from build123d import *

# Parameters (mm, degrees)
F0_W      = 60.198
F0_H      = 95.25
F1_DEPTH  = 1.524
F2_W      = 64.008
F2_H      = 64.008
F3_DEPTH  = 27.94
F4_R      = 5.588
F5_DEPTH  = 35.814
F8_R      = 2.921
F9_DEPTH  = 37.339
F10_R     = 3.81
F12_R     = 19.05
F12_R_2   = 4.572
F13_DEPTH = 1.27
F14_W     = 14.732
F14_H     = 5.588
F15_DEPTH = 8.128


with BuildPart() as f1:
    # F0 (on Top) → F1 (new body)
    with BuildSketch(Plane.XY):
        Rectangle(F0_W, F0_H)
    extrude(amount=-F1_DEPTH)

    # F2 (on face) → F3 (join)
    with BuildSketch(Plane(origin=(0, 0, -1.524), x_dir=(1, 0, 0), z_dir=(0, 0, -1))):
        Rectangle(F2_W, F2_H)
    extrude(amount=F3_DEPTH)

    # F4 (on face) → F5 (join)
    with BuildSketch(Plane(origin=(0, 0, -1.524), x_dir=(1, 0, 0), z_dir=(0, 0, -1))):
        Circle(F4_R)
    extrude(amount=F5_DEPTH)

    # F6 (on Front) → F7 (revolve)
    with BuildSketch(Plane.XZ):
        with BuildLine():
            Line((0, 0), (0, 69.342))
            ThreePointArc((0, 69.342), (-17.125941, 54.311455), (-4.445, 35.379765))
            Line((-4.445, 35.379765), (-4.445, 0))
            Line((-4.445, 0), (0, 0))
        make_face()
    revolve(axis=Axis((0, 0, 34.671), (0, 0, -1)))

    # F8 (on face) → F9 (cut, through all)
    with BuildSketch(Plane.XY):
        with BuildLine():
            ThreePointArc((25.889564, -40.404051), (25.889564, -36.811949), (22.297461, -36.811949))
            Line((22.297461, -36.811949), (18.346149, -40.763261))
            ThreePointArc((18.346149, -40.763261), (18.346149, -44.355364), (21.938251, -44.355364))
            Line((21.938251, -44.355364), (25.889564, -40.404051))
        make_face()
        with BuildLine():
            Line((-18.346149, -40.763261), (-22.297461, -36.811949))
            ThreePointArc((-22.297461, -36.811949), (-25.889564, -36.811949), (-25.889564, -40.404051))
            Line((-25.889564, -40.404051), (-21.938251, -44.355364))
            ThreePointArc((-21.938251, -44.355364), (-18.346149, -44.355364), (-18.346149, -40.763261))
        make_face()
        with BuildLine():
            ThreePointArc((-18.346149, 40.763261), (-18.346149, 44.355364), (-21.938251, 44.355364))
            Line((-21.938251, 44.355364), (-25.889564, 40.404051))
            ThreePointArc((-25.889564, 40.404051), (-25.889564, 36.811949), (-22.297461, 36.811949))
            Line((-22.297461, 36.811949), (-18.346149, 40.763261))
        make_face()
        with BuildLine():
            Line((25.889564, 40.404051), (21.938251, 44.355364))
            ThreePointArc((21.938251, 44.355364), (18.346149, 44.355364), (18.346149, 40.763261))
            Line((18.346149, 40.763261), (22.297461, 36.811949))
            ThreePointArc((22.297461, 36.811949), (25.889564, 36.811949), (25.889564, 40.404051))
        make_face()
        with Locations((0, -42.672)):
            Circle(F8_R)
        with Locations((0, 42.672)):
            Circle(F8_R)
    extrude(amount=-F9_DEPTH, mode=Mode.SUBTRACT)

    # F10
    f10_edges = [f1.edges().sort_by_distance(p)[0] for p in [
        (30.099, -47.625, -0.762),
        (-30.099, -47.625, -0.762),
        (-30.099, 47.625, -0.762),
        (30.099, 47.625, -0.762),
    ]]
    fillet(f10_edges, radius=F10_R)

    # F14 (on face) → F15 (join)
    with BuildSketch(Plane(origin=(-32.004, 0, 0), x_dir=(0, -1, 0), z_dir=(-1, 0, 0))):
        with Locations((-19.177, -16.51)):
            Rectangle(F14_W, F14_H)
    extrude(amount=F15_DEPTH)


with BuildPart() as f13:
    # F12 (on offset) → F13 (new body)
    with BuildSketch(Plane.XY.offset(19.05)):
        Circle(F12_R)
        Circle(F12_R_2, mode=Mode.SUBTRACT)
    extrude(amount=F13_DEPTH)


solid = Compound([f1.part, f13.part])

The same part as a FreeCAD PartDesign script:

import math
import FreeCAD as App
import Part
import Sketcher
from FreeCAD import Vector
Q = App.Units.Quantity


def edges_at(feature, points):
    """Names of the edges that pass closest to the given points."""
    edges = feature.Shape.Edges
    near = lambda p: min(range(len(edges)), key=lambda i: edges[i].distToShape(Part.Vertex(*p))[0])
    return sorted({f"Edge{near(p) + 1}" for p in points})


def add_polygon(sketch, points):
    """Adds a closed chain of lines whose ends are joined by coincident constraints."""
    first, n = sketch.GeometryCount, len(points)
    for a, b in zip(points, points[1:] + points[:1]):
        sketch.addGeometry(Part.LineSegment(App.Vector(*a, 0), App.Vector(*b, 0)), False)
    for i in range(n):
        sketch.addConstraint(Sketcher.Constraint("Coincident", first + i, 2, first + (i + 1) % n, 1))

doc = App.newDocument("Part")
params = doc.addObject("Spreadsheet::Sheet", "Params")
for row, (alias, value) in enumerate([
    ("sketch1_width", "2.37 in"),
    ("sketch1_height", "3.75 in"),
    ("pad1_length", "0.06 in"),
    ("sketch2_width", "2.52 in"),
    ("pad2_length", "1.1 in"),
    ("sketch3_diameter", "0.44 in"),
    ("pad3_length", "1.41 in"),
    ("sketch4_radius", "0.68 in"),
    ("sketch4_height", "2.73 in"),
    ("sketch4_width", "0.175 in"),
    ("revolution_angle", "360 deg"),
    ("sketch5_radius", "0.1 in"),
    ("sketch5_diameter", "0.23 in"),
    ("sketch5_length", "0.22 in"),
    ("fillet_radius", "0.15 in"),
    ("sketch6_width", "0.58 in"),
    ("sketch6_height", "0.22 in"),
    ("pad4_length", "0.32 in"),
    ("sketch7_diameter", "1.5 in"),
    ("sketch7_diameter2", "0.36 in"),
    ("pad5_length", "0.05 in"),
], start=1):
    params.set(f"A{row}", alias)
    params.set(f"B{row}", "=" + value)
    params.setAlias(f"B{row}", alias)

body = doc.addObject("PartDesign::Body", "Body")

# Sketch on XY plane
sketch1 = doc.addObject("Sketcher::SketchObject", "Sketch")
body.addObject(sketch1)
sketch1.AttachmentSupport = (doc.XY_Plane, [""])
sketch1.MapMode = "FlatFace"
add_polygon(sketch1, [(-30.099, 47.625), (-30.099, -47.625), (30.099, -47.625), (30.099, 47.625)])  # lines 0-3
sketch1.addConstraint([
    Sketcher.Constraint("Vertical", 0),
    Sketcher.Constraint("Horizontal", 1),
    Sketcher.Constraint("Vertical", 2),
    Sketcher.Constraint("Horizontal", 3),
    Sketcher.Constraint("Symmetric", 0, 2, 2, 2, -1, 1),
    Sketcher.Constraint("DistanceX", 1, 1, 1, 2, Q("2.37 in")),
    Sketcher.Constraint("DistanceY", 0, 2, 0, 1, Q("3.75 in")),
])
sketch1.setExpression("Constraints[9]", "Params.sketch1_width")
sketch1.setExpression("Constraints[10]", "Params.sketch1_height")
pad1 = doc.addObject("PartDesign::Pad", "Pad")
body.addObject(pad1)
pad1.Profile = sketch1
pad1.setExpression("Length", "Params.pad1_length")
pad1.Reversed = True

# Sketch on XY plane
sketch2 = doc.addObject("Sketcher::SketchObject", "Sketch001")
body.addObject(sketch2)
sketch2.AttachmentSupport = (doc.XY_Plane, [""])
sketch2.MapMode = "FlatFace"
sketch2.AttachmentOffset = App.Placement(Vector(0, 0, -0.06 * 25.4), App.Rotation())
add_polygon(sketch2, [(-32.004, -32.004), (-32.004, 32.004), (32.004, 32.004), (32.004, -32.004)])  # lines 0-3
sketch2.addConstraint([
    Sketcher.Constraint("Vertical", 0),
    Sketcher.Constraint("Horizontal", 1),
    Sketcher.Constraint("Vertical", 2),
    Sketcher.Constraint("Horizontal", 3),
    Sketcher.Constraint("Symmetric", 0, 2, 2, 2, -1, 1),
    Sketcher.Constraint("Equal", 3, 0),
    Sketcher.Constraint("DistanceX", 1, 1, 1, 2, Q("2.52 in")),
])
sketch2.setExpression("Constraints[10]", "Params.sketch2_width")
pad2 = doc.addObject("PartDesign::Pad", "Pad001")
body.addObject(pad2)
pad2.Profile = sketch2
pad2.setExpression("Length", "Params.pad2_length")
pad2.Reversed = True

# Sketch on XY plane
sketch3 = doc.addObject("Sketcher::SketchObject", "Sketch002")
body.addObject(sketch3)
sketch3.AttachmentSupport = (doc.XY_Plane, [""])
sketch3.MapMode = "FlatFace"
sketch3.AttachmentOffset = App.Placement(Vector(0, 0, -0.06 * 25.4), App.Rotation())
sketch3.addGeometry(Part.Circle(Vector(0, 0, 0), Vector(0, 0, 1), 5.588), False)
sketch3.addConstraint([
    Sketcher.Constraint("Coincident", 0, 3, -1, 1),
    Sketcher.Constraint("Diameter", 0, Q("0.44 in")),
])
sketch3.setExpression("Constraints[1]", "Params.sketch3_diameter")
pad3 = doc.addObject("PartDesign::Pad", "Pad002")
body.addObject(pad3)
pad3.Profile = sketch3
pad3.setExpression("Length", "Params.pad3_length")
pad3.Reversed = True

# Sketch on XZ plane
sketch4 = doc.addObject("Sketcher::SketchObject", "Sketch003")
body.addObject(sketch4)
sketch4.AttachmentSupport = (doc.XZ_Plane, [""])
sketch4.MapMode = "FlatFace"
sketch4.addGeometry([
    Part.LineSegment(Vector(0, 0, 0), Vector(0, 69.342, 0)),
    Part.ArcOfCircle(Part.Circle(Vector(0, 52.07, 0), Vector(0, 0, 1), 17.272), math.radians(90), math.radians(255.086947)),
    Part.LineSegment(Vector(-4.445, 35.379765, 0), Vector(-4.445, 0, 0)),
    Part.LineSegment(Vector(-4.445, 0, 0), Vector(0, 0, 0)),
], False)
sketch4.addConstraint([
    Sketcher.Constraint("Coincident", 0, 2, 1, 1),
    Sketcher.Constraint("Coincident", 1, 2, 2, 1),
    Sketcher.Constraint("Coincident", 2, 2, 3, 1),
    Sketcher.Constraint("Coincident", 3, 2, 0, 1),
    Sketcher.Constraint("Vertical", 0),
    Sketcher.Constraint("Vertical", 2),
    Sketcher.Constraint("Horizontal", 3),
    Sketcher.Constraint("Coincident", 3, 2, -1, 1),
    Sketcher.Constraint("PointOnObject", 1, 3, -2),
    Sketcher.Constraint("Radius", 1, Q("0.68 in")),
    Sketcher.Constraint("DistanceY", 0, 1, 0, 2, Q("2.73 in")),
    Sketcher.Constraint("DistanceX", 3, 1, 3, 2, Q("0.175 in")),
])
sketch4.setExpression("Constraints[9]", "Params.sketch4_radius")
sketch4.setExpression("Constraints[10]", "Params.sketch4_height")
sketch4.setExpression("Constraints[11]", "Params.sketch4_width")
revolution = doc.addObject("PartDesign::Revolution", "Revolution")
body.addObject(revolution)
revolution.Profile = sketch4
revolution.ReferenceAxis = (sketch4, ["V_Axis"])
revolution.setExpression("Angle", "Params.revolution_angle")

# Sketch on XY plane
sketch5 = doc.addObject("Sketcher::SketchObject", "Sketch004")
body.addObject(sketch5)
sketch5.AttachmentSupport = (doc.XY_Plane, [""])
sketch5.MapMode = "FlatFace"
sketch5.addGeometry([
    Part.ArcOfCircle(Part.Circle(Vector(24.093512, -38.608, 0), Vector(0, 0, 1), 2.54), math.radians(-44.999992), math.radians(135.000008)),  # 0
    Part.LineSegment(Vector(22.297461, -36.811949, 0), Vector(18.346149, -40.763261, 0)),  # 1
    Part.ArcOfCircle(Part.Circle(Vector(20.1422, -42.559312, 0), Vector(0, 0, 1), 2.54), math.radians(134.999992), math.radians(314.999992)),  # 2
    Part.LineSegment(Vector(21.938251, -44.355364, 0), Vector(25.889564, -40.404051, 0)),  # 3
    Part.LineSegment(Vector(-18.346149, -40.763261, 0), Vector(-22.297461, -36.811949, 0)),  # 4
    Part.ArcOfCircle(Part.Circle(Vector(-24.093512, -38.608, 0), Vector(0, 0, 1), 2.54), math.radians(44.999992), math.radians(224.999992)),  # 5
    Part.LineSegment(Vector(-25.889564, -40.404051, 0), Vector(-21.938251, -44.355364, 0)),  # 6
    Part.ArcOfCircle(Part.Circle(Vector(-20.1422, -42.559312, 0), Vector(0, 0, 1), 2.54), math.radians(-134.999992), math.radians(45.000008)),  # 7
    Part.ArcOfCircle(Part.Circle(Vector(-20.1422, 42.559312, 0), Vector(0, 0, 1), 2.54), math.radians(-45.000008), math.radians(134.999992)),  # 8
    Part.LineSegment(Vector(-21.938251, 44.355364, 0), Vector(-25.889564, 40.404051, 0)),  # 9
    Part.ArcOfCircle(Part.Circle(Vector(-24.093512, 38.608, 0), Vector(0, 0, 1), 2.54), math.radians(135.000008), math.radians(315.000008)),  # 10
    Part.LineSegment(Vector(-22.297461, 36.811949, 0), Vector(-18.346149, 40.763261, 0)),  # 11
    Part.LineSegment(Vector(25.889564, 40.404051, 0), Vector(21.938251, 44.355364, 0)),  # 12
    Part.ArcOfCircle(Part.Circle(Vector(20.1422, 42.559312, 0), Vector(0, 0, 1), 2.54), math.radians(45.000008), math.radians(225.000008)),  # 13
    Part.LineSegment(Vector(18.346149, 40.763261, 0), Vector(22.297461, 36.811949, 0)),  # 14
    Part.ArcOfCircle(Part.Circle(Vector(24.093512, 38.608, 0), Vector(0, 0, 1), 2.54), math.radians(-135.000008), math.radians(44.999992)),  # 15
    Part.Circle(Vector(0, -42.672, 0), Vector(0, 0, 1), 2.921),  # 16
    Part.Circle(Vector(0, 42.672, 0), Vector(0, 0, 1), 2.921),  # 17
], False)
sketch5.addConstraint([
    Sketcher.Constraint("Tangent", 0, 2, 1, 1),
    Sketcher.Constraint("Tangent", 1, 2, 2, 1),
    Sketcher.Constraint("Tangent", 2, 2, 3, 1),
    Sketcher.Constraint("Tangent", 3, 2, 0, 1),
    Sketcher.Constraint("Tangent", 4, 2, 5, 1),
    Sketcher.Constraint("Tangent", 5, 2, 6, 1),
    Sketcher.Constraint("Tangent", 6, 2, 7, 1),
    Sketcher.Constraint("Tangent", 7, 2, 4, 1),
    Sketcher.Constraint("Tangent", 8, 2, 9, 1),
    Sketcher.Constraint("Tangent", 9, 2, 10, 1),
    Sketcher.Constraint("Tangent", 10, 2, 11, 1),
    Sketcher.Constraint("Tangent", 11, 2, 8, 1),
    Sketcher.Constraint("Tangent", 12, 2, 13, 1),
    Sketcher.Constraint("Tangent", 13, 2, 14, 1),
    Sketcher.Constraint("Tangent", 14, 2, 15, 1),
    Sketcher.Constraint("Tangent", 15, 2, 12, 1),
    Sketcher.Constraint("Equal", 0, 2),
    Sketcher.Constraint("Equal", 2, 5),
    Sketcher.Constraint("Equal", 5, 7),
    Sketcher.Constraint("Equal", 7, 8),
    Sketcher.Constraint("Equal", 8, 10),
    Sketcher.Constraint("Equal", 10, 13),
    Sketcher.Constraint("Equal", 13, 15),
    Sketcher.Constraint("Equal", 16, 17),
    Sketcher.Constraint("Symmetric", 2, 3, 8, 3, -1, 1),
    Sketcher.Constraint("Symmetric", 0, 3, 10, 3, -1, 1),
    Sketcher.Constraint("Symmetric", 7, 3, 13, 3, -1, 1),
    Sketcher.Constraint("Symmetric", 5, 3, 15, 3, -1, 1),
    Sketcher.Constraint("Symmetric", 16, 3, 17, 3, -1, 1),
    Sketcher.Constraint("Symmetric", 0, 3, 5, 3, -2),
    Sketcher.Constraint("Symmetric", 2, 3, 7, 3, -2),
    Sketcher.Constraint("PointOnObject", 16, 3, -2),
    Sketcher.Constraint("Perpendicular", 3, 4),
    Sketcher.Constraint("Radius", 0, Q("0.1 in")),
    Sketcher.Constraint("Diameter", 16, Q("0.23 in")),
    Sketcher.Constraint("DistanceY", 16, 3, 10, 3, Q("3.2 in")),
    Sketcher.Constraint("Distance", 1, Q("0.22 in")),
    Sketcher.Constraint("DistanceY", 0, 3, -1, 1, Q("1.52 in")),
    Sketcher.Constraint("DistanceX", -1, 1, 2, 3, Q("0.793 in")),
])
sketch5.setExpression("Constraints[33]", "Params.sketch5_radius")
sketch5.setExpression("Constraints[34]", "Params.sketch5_diameter")
sketch5.setExpression("Constraints[36]", "Params.sketch5_length")
pocket1 = doc.addObject("PartDesign::Pocket", "Pocket")
body.addObject(pocket1)
pocket1.Profile = sketch5
pocket1.Type = "ThroughAll"
doc.recompute()

fillet = doc.addObject("PartDesign::Fillet", "Fillet")
body.addObject(fillet)
fillet.Base = (pocket1, edges_at(pocket1, [
    (30.099, -47.625, -0.762),
    (-30.099, -47.625, -0.762),
    (-30.099, 47.625, -0.762),
    (30.099, 47.625, -0.762),
]))
fillet.setExpression("Radius", "Params.fillet_radius")

# Sketch on YZ plane
sketch6 = doc.addObject("Sketcher::SketchObject", "Sketch005")
body.addObject(sketch6)
sketch6.AttachmentSupport = (doc.YZ_Plane, [""])
sketch6.MapMode = "FlatFace"
sketch6.AttachmentOffset = App.Placement(Vector(0, 0, -1.26 * 25.4), App.Rotation())
add_polygon(sketch6, [(26.543, -13.716), (26.543, -19.304), (11.811, -19.304), (11.811, -13.716)])  # lines 0-3
sketch6.addConstraint([
    Sketcher.Constraint("Vertical", 0),
    Sketcher.Constraint("Horizontal", 1),
    Sketcher.Constraint("Vertical", 2),
    Sketcher.Constraint("Horizontal", 3),
    Sketcher.Constraint("DistanceX", 1, 2, 1, 1, Q("0.58 in")),
    Sketcher.Constraint("DistanceY", 0, 2, 0, 1, Q("0.22 in")),
    Sketcher.Constraint("DistanceY", 0, 2, -1, 1, Q("0.76 in")),
    Sketcher.Constraint("DistanceX", -1, 1, 0, 2, Q("1.045 in")),
])
sketch6.setExpression("Constraints[8]", "Params.sketch6_width")
sketch6.setExpression("Constraints[9]", "Params.sketch6_height")
pad4 = doc.addObject("PartDesign::Pad", "Pad003")
body.addObject(pad4)
pad4.Profile = sketch6
pad4.setExpression("Length", "Params.pad4_length")
pad4.Reversed = True
body2 = doc.addObject("PartDesign::Body", "Body001")

# Sketch on XY plane
sketch7 = doc.addObject("Sketcher::SketchObject", "Sketch006")
body2.addObject(sketch7)
sketch7.AttachmentSupport = (doc.getObject("XY_Plane001"), [""])
sketch7.MapMode = "FlatFace"
sketch7.AttachmentOffset = App.Placement(Vector(0, 0, 0.75 * 25.4), App.Rotation())
sketch7.addGeometry([
    Part.Circle(Vector(0, 0, 0), Vector(0, 0, 1), 19.05),
    Part.Circle(Vector(0, 0, 0), Vector(0, 0, 1), 4.572),
], False)
sketch7.addConstraint([
    Sketcher.Constraint("Coincident", 0, 3, -1, 1),
    Sketcher.Constraint("Coincident", 1, 3, -1, 1),
    Sketcher.Constraint("Diameter", 0, Q("1.5 in")),
    Sketcher.Constraint("Diameter", 1, Q("0.36 in")),
])
sketch7.setExpression("Constraints[2]", "Params.sketch7_diameter")
sketch7.setExpression("Constraints[3]", "Params.sketch7_diameter2")
pad5 = doc.addObject("PartDesign::Pad", "Pad004")
body2.addObject(pad5)
pad5.Profile = sketch7
pad5.setExpression("Length", "Params.pad5_length")

doc.recompute()
